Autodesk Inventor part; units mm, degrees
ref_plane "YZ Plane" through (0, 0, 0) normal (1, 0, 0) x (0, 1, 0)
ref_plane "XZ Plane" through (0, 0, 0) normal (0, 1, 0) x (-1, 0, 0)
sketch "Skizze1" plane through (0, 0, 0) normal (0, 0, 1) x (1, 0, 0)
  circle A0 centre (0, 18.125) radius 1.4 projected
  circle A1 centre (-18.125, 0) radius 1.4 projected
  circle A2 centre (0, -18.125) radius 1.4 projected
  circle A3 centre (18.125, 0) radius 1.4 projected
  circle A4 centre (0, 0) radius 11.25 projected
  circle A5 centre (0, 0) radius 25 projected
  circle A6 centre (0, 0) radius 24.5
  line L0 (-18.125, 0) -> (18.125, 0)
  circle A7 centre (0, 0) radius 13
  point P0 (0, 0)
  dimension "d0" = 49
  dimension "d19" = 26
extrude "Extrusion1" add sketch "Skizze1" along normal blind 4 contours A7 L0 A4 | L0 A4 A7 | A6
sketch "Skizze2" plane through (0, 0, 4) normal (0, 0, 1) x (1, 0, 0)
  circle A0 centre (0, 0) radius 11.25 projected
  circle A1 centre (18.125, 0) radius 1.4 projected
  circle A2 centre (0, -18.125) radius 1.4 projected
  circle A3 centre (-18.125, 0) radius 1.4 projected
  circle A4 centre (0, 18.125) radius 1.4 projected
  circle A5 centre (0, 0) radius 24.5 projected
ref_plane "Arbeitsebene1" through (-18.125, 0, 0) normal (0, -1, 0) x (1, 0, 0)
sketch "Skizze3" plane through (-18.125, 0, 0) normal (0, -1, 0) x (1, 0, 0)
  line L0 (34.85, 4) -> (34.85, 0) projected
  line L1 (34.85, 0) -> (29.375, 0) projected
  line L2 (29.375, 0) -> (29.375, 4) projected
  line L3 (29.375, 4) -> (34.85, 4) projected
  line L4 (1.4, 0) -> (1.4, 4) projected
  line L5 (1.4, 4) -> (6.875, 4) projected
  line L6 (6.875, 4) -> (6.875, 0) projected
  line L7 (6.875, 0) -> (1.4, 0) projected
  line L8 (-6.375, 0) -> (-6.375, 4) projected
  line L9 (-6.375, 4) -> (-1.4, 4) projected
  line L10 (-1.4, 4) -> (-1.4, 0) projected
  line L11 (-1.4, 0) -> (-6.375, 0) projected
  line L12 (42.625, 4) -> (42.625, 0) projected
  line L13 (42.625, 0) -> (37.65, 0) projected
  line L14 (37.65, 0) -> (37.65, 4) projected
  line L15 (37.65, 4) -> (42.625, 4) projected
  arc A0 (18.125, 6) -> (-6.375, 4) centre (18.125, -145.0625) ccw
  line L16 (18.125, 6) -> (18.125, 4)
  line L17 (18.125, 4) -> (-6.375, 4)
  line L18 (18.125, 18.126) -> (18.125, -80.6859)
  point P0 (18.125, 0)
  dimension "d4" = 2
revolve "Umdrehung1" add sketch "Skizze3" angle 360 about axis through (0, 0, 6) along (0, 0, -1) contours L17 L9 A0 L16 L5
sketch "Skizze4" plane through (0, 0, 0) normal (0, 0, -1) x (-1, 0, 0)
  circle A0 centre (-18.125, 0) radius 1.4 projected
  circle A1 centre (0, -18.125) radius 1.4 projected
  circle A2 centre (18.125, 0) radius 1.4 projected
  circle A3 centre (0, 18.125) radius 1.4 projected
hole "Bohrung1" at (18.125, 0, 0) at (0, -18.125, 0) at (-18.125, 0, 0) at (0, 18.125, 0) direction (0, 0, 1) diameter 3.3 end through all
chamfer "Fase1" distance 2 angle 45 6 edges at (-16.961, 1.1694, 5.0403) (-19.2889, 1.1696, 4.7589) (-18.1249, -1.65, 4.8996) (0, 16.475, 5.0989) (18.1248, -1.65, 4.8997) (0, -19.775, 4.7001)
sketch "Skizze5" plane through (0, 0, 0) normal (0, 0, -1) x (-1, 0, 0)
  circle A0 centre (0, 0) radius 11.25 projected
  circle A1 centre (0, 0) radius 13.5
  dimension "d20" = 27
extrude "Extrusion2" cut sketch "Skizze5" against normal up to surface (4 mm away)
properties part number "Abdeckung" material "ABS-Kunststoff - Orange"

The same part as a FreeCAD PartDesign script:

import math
import FreeCAD as App
import Part
import Sketcher

V = App.Vector


def edges_at(feature, points):
    """Names of the edges that pass closest to the given points."""
    edges = feature.Shape.Edges
    near = lambda p: min(range(len(edges)), key=lambda i: edges[i].distToShape(Part.Vertex(*p))[0])
    return sorted({f"Edge{near(p) + 1}" for p in points})

doc = App.newDocument("Part")
body = doc.addObject("PartDesign::Body", "Body")

# Sketch on XY plane
sketch1 = body.newObject("Sketcher::SketchObject", "Sketch")
sketch1.AttachmentSupport = (doc.getObject("XY_Plane"), [""])
sketch1.MapMode = "FlatFace"
sketch1.addGeometry([
    Part.Circle(V(0, 0, 0), V(0, 0, 1), 24.5),  # 0
    Part.Circle(V(0, 0, 0), V(0, 0, 1), 11.2),  # 1
    Part.Circle(V(0, -18.1, 0), V(0, 0, 1), 1.4),  # 2
    Part.Circle(V(-18.1, 0, 0), V(0, 0, 1), 1.4),  # 3
    Part.Circle(V(18.1, 0, 0), V(0, 0, 1), 1.4),  # 4
    Part.Circle(V(0, 18.1, 0), V(0, 0, 1), 1.4),  # 5
], False)
sketch1.addConstraint([
    Sketcher.Constraint("Coincident", 0, 3, -1, 1),
    Sketcher.Constraint("Coincident", 1, 3, -1, 1),
    Sketcher.Constraint("Equal", 2, 3),
    Sketcher.Constraint("Equal", 3, 4),
    Sketcher.Constraint("Equal", 4, 5),
    Sketcher.Constraint("Symmetric", 3, 3, 4, 3, -1, 1),
    Sketcher.Constraint("Symmetric", 2, 3, 5, 3, -1, 1),
    Sketcher.Constraint("PointOnObject", 2, 3, -2),
    Sketcher.Constraint("PointOnObject", 3, 3, -1),
    Sketcher.Constraint("Diameter", 0, 49.0),
    Sketcher.Constraint("Diameter", 1, 22.5),
    Sketcher.Constraint("Diameter", 2, 2.8),
    Sketcher.Constraint("DistanceX", 3, 3, 4, 3, 36.25),
    Sketcher.Constraint("DistanceY", 2, 3, 5, 3, 36.25),
])
pad1 = body.newObject("PartDesign::Pad", "Pad")
pad1.Profile = sketch1
pad1.Length = 4

# Sketch on XZ plane
sketch2 = body.newObject("Sketcher::SketchObject", "Sketch001")
sketch2.AttachmentSupport = (doc.getObject("XZ_Plane"), [""])
sketch2.MapMode = "FlatFace"
sketch2.addGeometry([
    Part.LineSegment(V(-24.5, 4, 0), V(0, 4, 0)),
    Part.LineSegment(V(0, 4, 0), V(0, 6, 0)),
    Part.ArcOfCircle(Part.Circle(V(0, -145.1, 0), V(0, 0, 1), 151.1), math.radians(90), math.radians(99.33)),
], False)
sketch2.addConstraint([
    Sketcher.Constraint("Coincident", 0, 2, 1, 1),
    Sketcher.Constraint("Coincident", 1, 2, 2, 1),
    Sketcher.Constraint("Coincident", 2, 2, 0, 1),
    Sketcher.Constraint("Horizontal", 0),
    Sketcher.Constraint("Vertical", 1),
    Sketcher.Constraint("PointOnObject", 2, 3, -2),
    Sketcher.Constraint("PointOnObject", 0, 2, -2),
    Sketcher.Constraint("DistanceY", 1, 1, 1, 2, 2.0),
    Sketcher.Constraint("DistanceX", 0, 1, 0, 2, 24.5),
    Sketcher.Constraint("DistanceY", -1, 1, 0, 2, 4.0),
])
revolution = body.newObject("PartDesign::Revolution", "Revolution")
revolution.Profile = sketch2
revolution.ReferenceAxis = (sketch2, ["V_Axis"])
revolution.Angle = 360

# Sketch on XY plane
sketch3 = body.newObject("Sketcher::SketchObject", "Sketch002")
sketch3.AttachmentSupport = (doc.getObject("XY_Plane"), [""])
sketch3.MapMode = "FlatFace"
sketch3.addGeometry([
    Part.Circle(V(18.1, 0, 0), V(0, 0, 1), 1.6),
    Part.Circle(V(0, -18.1, 0), V(0, 0, 1), 1.6),
    Part.Circle(V(-18.1, 0, 0), V(0, 0, 1), 1.6),
    Part.Circle(V(0, 18.1, 0), V(0, 0, 1), 1.6),
], False)
sketch3.addConstraint([
    Sketcher.Constraint("Equal", 0, 1),
    Sketcher.Constraint("Equal", 1, 2),
    Sketcher.Constraint("Equal", 2, 3),
    Sketcher.Constraint("Symmetric", 0, 3, 2, 3, -1, 1),
    Sketcher.Constraint("Symmetric", 1, 3, 3, 3, -1, 1),
    Sketcher.Constraint("PointOnObject", 0, 3, -1),
    Sketcher.Constraint("PointOnObject", 1, 3, -2),
    Sketcher.Constraint("Diameter", 0, 3.3),
    Sketcher.Constraint("DistanceX", 2, 3, 0, 3, 36.25),
    Sketcher.Constraint("DistanceY", 1, 3, 3, 3, 36.25),
])
doc.recompute()
hole = body.newObject("PartDesign::Hole", "Hole")
hole.Profile = sketch3
hole.ThreadType = "None"
hole.Diameter = 3.3
hole.DepthType = "ThroughAll"
hole.Reversed = True
doc.recompute()

chamfer = body.newObject("PartDesign::Chamfer", "Chamfer")
chamfer.Base = (hole, edges_at(hole, [
    (-16.961, 1.169, 5.04),
    (-19.289, 1.17, 4.759),
    (-18.125, -1.65, 4.9),
    (0, 16.475, 5.099),
    (18.125, -1.65, 4.9),
    (0, -19.775, 4.7),
]))
chamfer.Size = 2

# Sketch on XY plane
sketch4 = body.newObject("Sketcher::SketchObject", "Sketch003")
sketch4.AttachmentSupport = (doc.getObject("XY_Plane"), [""])
sketch4.MapMode = "FlatFace"
sketch4.addGeometry([
    Part.Circle(V(0, 0, 0), V(0, 0, 1), 14),
    Part.Circle(V(0, 0, 0), V(0, 0, 1), 11),
], False)
sketch4.addConstraint([
    Sketcher.Constraint("Coincident", 0, 3, -1, 1),
    Sketcher.Constraint("Coincident", 1, 3, -1, 1),
    Sketcher.Constraint("Diameter", 0, 27.0),
    Sketcher.Constraint("Diameter", 1, 22.5),
])
pocket1 = body.newObject("PartDesign::Pocket", "Pocket")
pocket1.Profile = sketch4
pocket1.Length = 4
pocket1.Reversed = True

doc.recompute()
